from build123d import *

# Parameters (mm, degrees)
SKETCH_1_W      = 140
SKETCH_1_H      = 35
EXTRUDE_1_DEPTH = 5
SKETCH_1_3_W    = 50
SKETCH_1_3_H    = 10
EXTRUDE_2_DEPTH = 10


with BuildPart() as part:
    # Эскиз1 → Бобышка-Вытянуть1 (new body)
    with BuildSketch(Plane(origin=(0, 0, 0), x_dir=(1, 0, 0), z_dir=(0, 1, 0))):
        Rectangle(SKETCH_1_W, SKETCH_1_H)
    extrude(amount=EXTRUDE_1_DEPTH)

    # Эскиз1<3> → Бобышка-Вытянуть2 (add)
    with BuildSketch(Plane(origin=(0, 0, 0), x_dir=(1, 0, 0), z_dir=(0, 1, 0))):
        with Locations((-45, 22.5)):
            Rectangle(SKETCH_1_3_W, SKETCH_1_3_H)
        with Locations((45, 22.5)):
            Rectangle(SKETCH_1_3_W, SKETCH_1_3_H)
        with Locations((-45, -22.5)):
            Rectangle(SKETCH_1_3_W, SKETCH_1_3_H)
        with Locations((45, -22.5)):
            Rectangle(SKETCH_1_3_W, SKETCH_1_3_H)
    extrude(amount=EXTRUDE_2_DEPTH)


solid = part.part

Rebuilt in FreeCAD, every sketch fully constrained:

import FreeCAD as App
import Part
import Sketcher
Q = App.Units.Quantity

doc = App.newDocument("Part")
body = doc.addObject("PartDesign::Body", "Body")

# Sketch on XZ plane
sketch1 = doc.addObject("Sketcher::SketchObject", "Sketch")
body.addObject(sketch1)
sketch1.AttachmentSupport = (doc.XZ_Plane, [""])
sketch1.MapMode = "FlatFace"
sketch1.addGeometry(Part.LineSegment(App.Vector(-70, -18, 0), App.Vector(-70, 18, 0)), False)
sketch1.addGeometry(Part.LineSegment(App.Vector(-70, 18, 0), App.Vector(70, 18, 0)), False)
sketch1.addGeometry(Part.LineSegment(App.Vector(70, 18, 0), App.Vector(70, -18, 0)), False)
sketch1.addGeometry(Part.LineSegment(App.Vector(70, -18, 0), App.Vector(-70, -18, 0)), False)
sketch1.addConstraint(Sketcher.Constraint("Coincident", 0, 2, 1, 1))
sketch1.addConstraint(Sketcher.Constraint("Coincident", 1, 2, 2, 1))
sketch1.addConstraint(Sketcher.Constraint("Coincident", 2, 2, 3, 1))
sketch1.addConstraint(Sketcher.Constraint("Coincident", 3, 2, 0, 1))
sketch1.addConstraint(Sketcher.Constraint("Vertical", 0))
sketch1.addConstraint(Sketcher.Constraint("Horizontal", 1))
sketch1.addConstraint(Sketcher.Constraint("Vertical", 2))
sketch1.addConstraint(Sketcher.Constraint("Horizontal", 3))
sketch1.addConstraint(Sketcher.Constraint("Symmetric", 0, 2, 2, 2, -1, 1))
sketch1.addConstraint(Sketcher.Constraint("DistanceX", 1, 1, 1, 2, Q("140 mm")))
sketch1.addConstraint(Sketcher.Constraint("DistanceY", 0, 1, 0, 2, Q("35 mm")))
pad1 = doc.addObject("PartDesign::Pad", "Pad")
body.addObject(pad1)
pad1.Profile = sketch1
pad1.Length = 5
pad1.Reversed = True

# Sketch on XZ plane
sketch2 = doc.addObject("Sketcher::SketchObject", "Sketch001")
body.addObject(sketch2)
sketch2.AttachmentSupport = (doc.XZ_Plane, [""])
sketch2.MapMode = "FlatFace"
sketch2.addGeometry(Part.LineSegment(App.Vector(-70, -28, 0), App.Vector(-70, -18, 0)), False)
sketch2.addGeometry(Part.LineSegment(App.Vector(-70, -18, 0), App.Vector(-20, -18, 0)), False)
sketch2.addGeometry(Part.LineSegment(App.Vector(-20, -18, 0), App.Vector(-20, -28, 0)), False)
sketch2.addGeometry(Part.LineSegment(App.Vector(-20, -28, 0), App.Vector(-70, -28, 0)), False)
sketch2.addGeometry(Part.LineSegment(App.Vector(20, -28, 0), App.Vector(20, -18, 0)), False)
sketch2.addGeometry(Part.LineSegment(App.Vector(20, -18, 0), App.Vector(70, -18, 0)), False)
sketch2.addGeometry(Part.LineSegment(App.Vector(70, -18, 0), App.Vector(70, -28, 0)), False)
sketch2.addGeometry(Part.LineSegment(App.Vector(70, -28, 0), App.Vector(20, -28, 0)), False)
sketch2.addGeometry(Part.LineSegment(App.Vector(-70, 18, 0), App.Vector(-70, 28, 0)), False)
sketch2.addGeometry(Part.LineSegment(App.Vector(-70, 28, 0), App.Vector(-20, 28, 0)), False)
sketch2.addGeometry(Part.LineSegment(App.Vector(-20, 28, 0), App.Vector(-20, 18, 0)), False)
sketch2.addGeometry(Part.LineSegment(App.Vector(-20, 18, 0), App.Vector(-70, 18, 0)), False)
sketch2.addGeometry(Part.LineSegment(App.Vector(20, 18, 0), App.Vector(20, 28, 0)), False)
sketch2.addGeometry(Part.LineSegment(App.Vector(20, 28, 0), App.Vector(70, 28, 0)), False)
sketch2.addGeometry(Part.LineSegment(App.Vector(70, 28, 0), App.Vector(70, 18, 0)), False)
sketch2.addGeometry(Part.LineSegment(App.Vector(70, 18, 0), App.Vector(20, 18, 0)), False)
sketch2.addConstraint(Sketcher.Constraint("Coincident", 0, 2, 1, 1))
sketch2.addConstraint(Sketcher.Constraint("Coincident", 1, 2, 2, 1))
sketch2.addConstraint(Sketcher.Constraint("Coincident", 2, 2, 3, 1))
sketch2.addConstraint(Sketcher.Constraint("Coincident", 3, 2, 0, 1))
sketch2.addConstraint(Sketcher.Constraint("Coincident", 4, 2, 5, 1))
sketch2.addConstraint(Sketcher.Constraint("Coincident", 5, 2, 6, 1))
sketch2.addConstraint(Sketcher.Constraint("Coincident", 6, 2, 7, 1))
sketch2.addConstraint(Sketcher.Constraint("Coincident", 7, 2, 4, 1))
sketch2.addConstraint(Sketcher.Constraint("Coincident", 8, 2, 9, 1))
sketch2.addConstraint(Sketcher.Constraint("Coincident", 9, 2, 10, 1))
sketch2.addConstraint(Sketcher.Constraint("Coincident", 10, 2, 11, 1))
sketch2.addConstraint(Sketcher.Constraint("Coincident", 11, 2, 8, 1))
sketch2.addConstraint(Sketcher.Constraint("Coincident", 12, 2, 13, 1))
sketch2.addConstraint(Sketcher.Constraint("Coincident", 13, 2, 14, 1))
sketch2.addConstraint(Sketcher.Constraint("Coincident", 14, 2, 15, 1))
sketch2.addConstraint(Sketcher.Constraint("Coincident", 15, 2, 12, 1))
sketch2.addConstraint(Sketcher.Constraint("Vertical", 0))
sketch2.addConstraint(Sketcher.Constraint("Horizontal", 1))
sketch2.addConstraint(Sketcher.Constraint("Vertical", 2))
sketch2.addConstraint(Sketcher.Constraint("Horizontal", 3))
sketch2.addConstraint(Sketcher.Constraint("Vertical", 4))
sketch2.addConstraint(Sketcher.Constraint("Horizontal", 5))
sketch2.addConstraint(Sketcher.Constraint("Vertical", 6))
sketch2.addConstraint(Sketcher.Constraint("Horizontal", 7))
sketch2.addConstraint(Sketcher.Constraint("Vertical", 8))
sketch2.addConstraint(Sketcher.Constraint("Horizontal", 9))
sketch2.addConstraint(Sketcher.Constraint("Vertical", 10))
sketch2.addConstraint(Sketcher.Constraint("Horizontal", 11))
sketch2.addConstraint(Sketcher.Constraint("Vertical", 12))
sketch2.addConstraint(Sketcher.Constraint("Horizontal", 13))
sketch2.addConstraint(Sketcher.Constraint("Vertical", 14))
sketch2.addConstraint(Sketcher.Constraint("Horizontal", 15))
sketch2.addConstraint(Sketcher.Constraint("Symmetric", 6, 2, 8, 2, -1, 1))
sketch2.addConstraint(Sketcher.Constraint("Symmetric", 4, 2, 10, 2, -1, 1))
sketch2.addConstraint(Sketcher.Constraint("Symmetric", 2, 2, 12, 2, -1, 1))
sketch2.addConstraint(Sketcher.Constraint("Symmetric", 0, 2, 14, 2, -1, 1))
sketch2.addConstraint(Sketcher.Constraint("Symmetric", 1, 2, 4, 2, -2))
sketch2.addConstraint(Sketcher.Constraint("Symmetric", 3, 2, 6, 2, -2))
sketch2.addConstraint(Sketcher.Constraint("DistanceX", 1, 1, 1, 2, Q("50 mm")))
sketch2.addConstraint(Sketcher.Constraint("DistanceY", 0, 1, 0, 2, Q("10 mm")))
sketch2.addConstraint(Sketcher.Constraint("DistanceX", 0, 2, -1, 1, Q("70 mm")))
sketch2.addConstraint(Sketcher.Constraint("DistanceY", 0, 2, 8, 2, Q("45 mm")))
pad2 = doc.addObject("PartDesign::Pad", "Pad001")
body.addObject(pad2)
pad2.Profile = sketch2
pad2.Length = 10
pad2.Reversed = True

doc.recompute()
